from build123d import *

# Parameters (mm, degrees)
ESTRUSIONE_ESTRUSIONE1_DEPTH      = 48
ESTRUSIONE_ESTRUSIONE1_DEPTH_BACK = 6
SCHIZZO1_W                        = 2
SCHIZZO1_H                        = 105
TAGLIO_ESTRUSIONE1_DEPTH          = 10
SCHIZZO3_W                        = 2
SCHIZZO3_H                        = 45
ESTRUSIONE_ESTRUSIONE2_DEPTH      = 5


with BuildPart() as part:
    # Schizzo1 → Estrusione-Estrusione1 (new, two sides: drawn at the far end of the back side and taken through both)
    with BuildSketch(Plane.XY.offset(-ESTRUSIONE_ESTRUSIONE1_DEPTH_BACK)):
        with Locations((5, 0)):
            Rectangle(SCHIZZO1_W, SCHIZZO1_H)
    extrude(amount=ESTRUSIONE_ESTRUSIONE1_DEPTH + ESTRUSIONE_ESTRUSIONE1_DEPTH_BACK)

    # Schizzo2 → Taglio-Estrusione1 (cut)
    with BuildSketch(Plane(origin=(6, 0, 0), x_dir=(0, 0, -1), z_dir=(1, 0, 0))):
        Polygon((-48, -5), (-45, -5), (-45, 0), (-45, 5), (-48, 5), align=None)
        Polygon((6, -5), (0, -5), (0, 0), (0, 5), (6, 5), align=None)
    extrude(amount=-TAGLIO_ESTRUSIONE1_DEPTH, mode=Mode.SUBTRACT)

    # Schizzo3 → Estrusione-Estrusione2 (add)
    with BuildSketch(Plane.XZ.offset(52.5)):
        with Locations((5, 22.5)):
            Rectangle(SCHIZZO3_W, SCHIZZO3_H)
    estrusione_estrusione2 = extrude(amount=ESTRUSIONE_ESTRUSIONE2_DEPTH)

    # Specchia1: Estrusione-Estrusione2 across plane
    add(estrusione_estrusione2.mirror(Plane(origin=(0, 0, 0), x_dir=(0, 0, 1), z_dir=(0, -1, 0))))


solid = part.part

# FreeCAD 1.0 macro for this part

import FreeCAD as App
import Part
import Sketcher
from FreeCAD import Vector
Q = App.Units.Quantity


def add_polygon(sketch, points):
    """Adds a closed chain of lines whose ends are joined by coincident constraints."""
    first, n = sketch.GeometryCount, len(points)
    for a, b in zip(points, points[1:] + points[:1]):
        sketch.addGeometry(Part.LineSegment(App.Vector(*a, 0), App.Vector(*b, 0)), False)
    for i in range(n):
        sketch.addConstraint(Sketcher.Constraint("Coincident", first + i, 2, first + (i + 1) % n, 1))

doc = App.newDocument("Part")
body = doc.addObject("PartDesign::Body", "Body")

# Sketch on XY plane
sketch1 = body.newObject("Sketcher::SketchObject", "Sketch")
sketch1.AttachmentSupport = (doc.getObject("XY_Plane"), [""])
sketch1.MapMode = "FlatFace"
add_polygon(sketch1, [(4, 52.5), (4, -52.5), (6, -52.5), (6, 52.5)])  # lines 0-3
sketch1.addConstraint([
    Sketcher.Constraint("Vertical", 0),
    Sketcher.Constraint("Horizontal", 1),
    Sketcher.Constraint("Vertical", 2),
    Sketcher.Constraint("Horizontal", 3),
    Sketcher.Constraint("DistanceX", 1, 1, 1, 2, Q("2 mm")),
    Sketcher.Constraint("DistanceY", 0, 2, 0, 1, Q("105 mm")),
    Sketcher.Constraint("DistanceX", -1, 1, 0, 2, Q("4 mm")),
    Sketcher.Constraint("DistanceY", 0, 2, -1, 1, Q("52.5 mm")),
])
pad1 = body.newObject("PartDesign::Pad", "Pad")
pad1.Profile = sketch1
pad1.Type = "TwoLengths"
pad1.Length = 48
pad1.Length2 = 6

# Sketch on YZ plane
sketch2 = body.newObject("Sketcher::SketchObject", "Sketch001")
sketch2.AttachmentSupport = (doc.getObject("YZ_Plane"), [""])
sketch2.MapMode = "FlatFace"
sketch2.AttachmentOffset = App.Placement(Vector(0, 0, 6), App.Rotation())
add_polygon(sketch2, [(-5, 48), (-5, 45), (5, 45), (5, 48)])  # lines 0-3
add_polygon(sketch2, [(-5, 0), (-5, -6), (5, -6), (5, 0)])  # lines 4-7
sketch2.addConstraint([
    Sketcher.Constraint("Vertical", 0),
    Sketcher.Constraint("Horizontal", 1),
    Sketcher.Constraint("Vertical", 2),
    Sketcher.Constraint("Horizontal", 3),
    Sketcher.Constraint("Vertical", 4),
    Sketcher.Constraint("Horizontal", 5),
    Sketcher.Constraint("Vertical", 6),
    Sketcher.Constraint("Horizontal", 7),
    Sketcher.Constraint("Symmetric", 6, 2, 7, 2, -1, 1),
    Sketcher.Constraint("Vertical", 3, 2, 4, 2),
    Sketcher.Constraint("Vertical", 2, 2, 5, 2),
    Sketcher.Constraint("DistanceX", 1, 1, 1, 2, Q("10 mm")),
    Sketcher.Constraint("DistanceY", 0, 2, 0, 1, Q("3 mm")),
    Sketcher.Constraint("DistanceY", 4, 2, 4, 1, Q("6 mm")),
    Sketcher.Constraint("DistanceY", -1, 1, 0, 2, Q("45 mm")),
])
pocket1 = body.newObject("PartDesign::Pocket", "Pocket")
pocket1.Profile = sketch2
pocket1.Length = 10

# Sketch on XZ plane
sketch3 = body.newObject("Sketcher::SketchObject", "Sketch002")
sketch3.AttachmentSupport = (doc.getObject("XZ_Plane"), [""])
sketch3.MapMode = "FlatFace"
sketch3.AttachmentOffset = App.Placement(Vector(0, 0, 52.5), App.Rotation())
add_polygon(sketch3, [(4, 45), (4, 0), (6, 0), (6, 45)])  # lines 0-3
sketch3.addConstraint([
    Sketcher.Constraint("Vertical", 0),
    Sketcher.Constraint("Horizontal", 1),
    Sketcher.Constraint("Vertical", 2),
    Sketcher.Constraint("Horizontal", 3),
    Sketcher.Constraint("PointOnObject", 0, 2, -1),
    Sketcher.Constraint("DistanceX", 1, 1, 1, 2, Q("2 mm")),
    Sketcher.Constraint("DistanceY", 0, 2, 0, 1, Q("45 mm")),
    Sketcher.Constraint("DistanceX", -1, 1, 0, 2, Q("4 mm")),
])
pad2 = body.newObject("PartDesign::Pad", "Pad001")
pad2.Profile = sketch3
pad2.Length = 5
doc.recompute()

mirrored = body.newObject("PartDesign::Mirrored", "Mirrored")
mirrored.Originals = [pad2]
mirrored.MirrorPlane = (doc.getObject("XZ_Plane"), [""])
body.Tip = mirrored

doc.recompute()
